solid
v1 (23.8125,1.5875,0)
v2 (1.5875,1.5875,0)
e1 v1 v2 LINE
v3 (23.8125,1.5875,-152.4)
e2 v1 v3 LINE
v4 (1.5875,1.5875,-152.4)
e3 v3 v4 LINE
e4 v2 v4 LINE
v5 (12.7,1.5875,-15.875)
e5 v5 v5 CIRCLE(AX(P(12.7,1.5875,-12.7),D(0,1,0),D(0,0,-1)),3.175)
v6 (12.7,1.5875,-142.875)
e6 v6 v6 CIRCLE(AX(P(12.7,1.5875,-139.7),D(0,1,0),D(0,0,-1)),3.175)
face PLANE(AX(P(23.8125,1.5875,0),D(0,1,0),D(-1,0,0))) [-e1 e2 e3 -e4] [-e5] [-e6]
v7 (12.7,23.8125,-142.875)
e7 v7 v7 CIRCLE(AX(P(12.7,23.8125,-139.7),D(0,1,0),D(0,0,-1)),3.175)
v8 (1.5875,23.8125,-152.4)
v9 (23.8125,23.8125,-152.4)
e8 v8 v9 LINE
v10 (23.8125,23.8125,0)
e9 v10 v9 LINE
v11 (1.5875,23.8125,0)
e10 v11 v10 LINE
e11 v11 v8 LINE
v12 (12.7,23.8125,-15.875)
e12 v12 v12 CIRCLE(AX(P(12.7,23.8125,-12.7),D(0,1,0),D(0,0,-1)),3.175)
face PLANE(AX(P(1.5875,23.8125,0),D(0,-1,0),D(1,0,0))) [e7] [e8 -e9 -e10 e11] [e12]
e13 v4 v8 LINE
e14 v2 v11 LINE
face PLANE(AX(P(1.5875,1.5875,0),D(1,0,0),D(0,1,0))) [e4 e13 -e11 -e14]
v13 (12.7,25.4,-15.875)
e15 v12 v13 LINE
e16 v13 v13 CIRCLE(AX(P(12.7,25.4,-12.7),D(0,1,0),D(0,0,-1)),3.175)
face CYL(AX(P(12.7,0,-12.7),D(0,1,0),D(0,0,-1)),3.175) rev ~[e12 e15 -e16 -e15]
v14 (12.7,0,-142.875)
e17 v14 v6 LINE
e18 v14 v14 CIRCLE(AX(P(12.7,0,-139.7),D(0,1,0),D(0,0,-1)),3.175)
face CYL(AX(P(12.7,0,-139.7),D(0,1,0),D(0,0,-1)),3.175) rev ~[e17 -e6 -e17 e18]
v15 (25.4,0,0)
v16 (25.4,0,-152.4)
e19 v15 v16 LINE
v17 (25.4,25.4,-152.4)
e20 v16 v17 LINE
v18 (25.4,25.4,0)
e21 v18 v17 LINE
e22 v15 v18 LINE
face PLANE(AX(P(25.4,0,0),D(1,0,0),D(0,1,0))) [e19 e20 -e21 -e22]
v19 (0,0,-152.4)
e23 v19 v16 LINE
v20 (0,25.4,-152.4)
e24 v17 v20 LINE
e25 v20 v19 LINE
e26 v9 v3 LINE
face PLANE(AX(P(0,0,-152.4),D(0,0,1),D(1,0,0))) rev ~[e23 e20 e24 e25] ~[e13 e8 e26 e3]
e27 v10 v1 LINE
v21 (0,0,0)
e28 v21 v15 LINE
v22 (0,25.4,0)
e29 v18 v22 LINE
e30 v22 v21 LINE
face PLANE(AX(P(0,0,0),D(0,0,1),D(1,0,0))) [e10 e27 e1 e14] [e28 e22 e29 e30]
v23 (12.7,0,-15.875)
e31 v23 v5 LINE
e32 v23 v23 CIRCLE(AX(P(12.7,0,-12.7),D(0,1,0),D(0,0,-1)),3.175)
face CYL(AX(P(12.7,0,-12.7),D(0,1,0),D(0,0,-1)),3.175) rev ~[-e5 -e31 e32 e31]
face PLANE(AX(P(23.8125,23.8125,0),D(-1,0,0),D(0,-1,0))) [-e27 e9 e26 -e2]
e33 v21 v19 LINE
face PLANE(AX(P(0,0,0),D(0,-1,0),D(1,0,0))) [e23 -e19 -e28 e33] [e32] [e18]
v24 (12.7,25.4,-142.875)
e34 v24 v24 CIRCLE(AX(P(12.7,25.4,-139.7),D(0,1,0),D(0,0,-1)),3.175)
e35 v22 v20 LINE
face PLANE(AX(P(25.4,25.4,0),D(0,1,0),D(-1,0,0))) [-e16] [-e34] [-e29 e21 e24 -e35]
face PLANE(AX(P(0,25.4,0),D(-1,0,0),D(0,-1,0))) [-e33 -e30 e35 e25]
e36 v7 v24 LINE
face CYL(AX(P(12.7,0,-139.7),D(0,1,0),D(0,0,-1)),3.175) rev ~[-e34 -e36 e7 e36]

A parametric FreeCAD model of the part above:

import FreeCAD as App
import Part
import Sketcher

V = App.Vector
Q = App.Units.Quantity


def add_polygon(sketch, points):
    """Adds a closed chain of lines whose ends are joined by coincident constraints."""
    first, n = sketch.GeometryCount, len(points)
    for a, b in zip(points, points[1:] + points[:1]):
        sketch.addGeometry(Part.LineSegment(App.Vector(*a, 0), App.Vector(*b, 0)), False)
    for i in range(n):
        sketch.addConstraint(Sketcher.Constraint("Coincident", first + i, 2, first + (i + 1) % n, 1))

doc = App.newDocument("Part")
body = doc.addObject("PartDesign::Body", "Body")

# Sketch on XY plane
sketch1 = body.newObject("Sketcher::SketchObject", "Sketch")
sketch1.AttachmentSupport = (doc.getObject("XY_Plane"), [""])
sketch1.MapMode = "FlatFace"
add_polygon(sketch1, [(0, 25), (0, 0), (25, 0), (25, 25)])  # lines 0-3
add_polygon(sketch1, [(2, 2), (2, 24), (24, 24), (24, 2)])  # lines 4-7
sketch1.addConstraint(Sketcher.Constraint("Vertical", 0))
sketch1.addConstraint(Sketcher.Constraint("Horizontal", 1))
sketch1.addConstraint(Sketcher.Constraint("Vertical", 2))
sketch1.addConstraint(Sketcher.Constraint("Horizontal", 3))
sketch1.addConstraint(Sketcher.Constraint("Vertical", 4))
sketch1.addConstraint(Sketcher.Constraint("Horizontal", 5))
sketch1.addConstraint(Sketcher.Constraint("Vertical", 6))
sketch1.addConstraint(Sketcher.Constraint("Horizontal", 7))
sketch1.addConstraint(Sketcher.Constraint("Coincident", 0, 2, -1, 1))
sketch1.addConstraint(Sketcher.Constraint("Equal", 3, 0))
sketch1.addConstraint(Sketcher.Constraint("Equal", 7, 4))
sketch1.addConstraint(Sketcher.Constraint("DistanceX", 1, 1, 1, 2, Q("1 in")))
sketch1.addConstraint(Sketcher.Constraint("DistanceX", -1, 1, 4, 2, Q("0.0625 in")))
sketch1.addConstraint(Sketcher.Constraint("DistanceY", -1, 1, 6, 2, Q("0.0625 in")))
sketch1.addConstraint(Sketcher.Constraint("DistanceY", 4, 2, 3, 2, Q("0.0625 in")))
pad1 = body.newObject("PartDesign::Pad", "Pad")
pad1.Profile = sketch1
pad1.Length = Q("6 in")
pad1.Reversed = True

# Sketch on XZ plane
sketch2 = body.newObject("Sketcher::SketchObject", "Sketch001")
sketch2.AttachmentSupport = (doc.getObject("XZ_Plane"), [""])
sketch2.MapMode = "FlatFace"
sketch2.addGeometry(Part.Circle(V(12.7, -12.7, 0), V(0, 0, 1), 3.2), False)
sketch2.addGeometry(Part.Circle(V(12.7, -139.7, 0), V(0, 0, 1), 3.2), False)
sketch2.addConstraint(Sketcher.Constraint("Equal", 0, 1))
sketch2.addConstraint(Sketcher.Constraint("Vertical", 0, 3, 1, 3))
sketch2.addConstraint(Sketcher.Constraint("Diameter", 0, Q("0.25 in")))
sketch2.addConstraint(Sketcher.Constraint("DistanceY", 1, 3, 0, 3, Q("5 in")))
sketch2.addConstraint(Sketcher.Constraint("DistanceX", -1, 1, 0, 3, Q("0.5 in")))
sketch2.addConstraint(Sketcher.Constraint("DistanceY", 0, 3, -1, 1, Q("0.5 in")))
doc.recompute()
hole = body.newObject("PartDesign::Hole", "Hole")
hole.Profile = sketch2
hole.ThreadType = "None"
hole.Diameter = Q("0.25 in")
hole.DepthType = "Dimension"
hole.Depth = Q("1 in")
hole.DrillPoint = "Angled"
hole.DrillPointAngle = 118

doc.recompute()
